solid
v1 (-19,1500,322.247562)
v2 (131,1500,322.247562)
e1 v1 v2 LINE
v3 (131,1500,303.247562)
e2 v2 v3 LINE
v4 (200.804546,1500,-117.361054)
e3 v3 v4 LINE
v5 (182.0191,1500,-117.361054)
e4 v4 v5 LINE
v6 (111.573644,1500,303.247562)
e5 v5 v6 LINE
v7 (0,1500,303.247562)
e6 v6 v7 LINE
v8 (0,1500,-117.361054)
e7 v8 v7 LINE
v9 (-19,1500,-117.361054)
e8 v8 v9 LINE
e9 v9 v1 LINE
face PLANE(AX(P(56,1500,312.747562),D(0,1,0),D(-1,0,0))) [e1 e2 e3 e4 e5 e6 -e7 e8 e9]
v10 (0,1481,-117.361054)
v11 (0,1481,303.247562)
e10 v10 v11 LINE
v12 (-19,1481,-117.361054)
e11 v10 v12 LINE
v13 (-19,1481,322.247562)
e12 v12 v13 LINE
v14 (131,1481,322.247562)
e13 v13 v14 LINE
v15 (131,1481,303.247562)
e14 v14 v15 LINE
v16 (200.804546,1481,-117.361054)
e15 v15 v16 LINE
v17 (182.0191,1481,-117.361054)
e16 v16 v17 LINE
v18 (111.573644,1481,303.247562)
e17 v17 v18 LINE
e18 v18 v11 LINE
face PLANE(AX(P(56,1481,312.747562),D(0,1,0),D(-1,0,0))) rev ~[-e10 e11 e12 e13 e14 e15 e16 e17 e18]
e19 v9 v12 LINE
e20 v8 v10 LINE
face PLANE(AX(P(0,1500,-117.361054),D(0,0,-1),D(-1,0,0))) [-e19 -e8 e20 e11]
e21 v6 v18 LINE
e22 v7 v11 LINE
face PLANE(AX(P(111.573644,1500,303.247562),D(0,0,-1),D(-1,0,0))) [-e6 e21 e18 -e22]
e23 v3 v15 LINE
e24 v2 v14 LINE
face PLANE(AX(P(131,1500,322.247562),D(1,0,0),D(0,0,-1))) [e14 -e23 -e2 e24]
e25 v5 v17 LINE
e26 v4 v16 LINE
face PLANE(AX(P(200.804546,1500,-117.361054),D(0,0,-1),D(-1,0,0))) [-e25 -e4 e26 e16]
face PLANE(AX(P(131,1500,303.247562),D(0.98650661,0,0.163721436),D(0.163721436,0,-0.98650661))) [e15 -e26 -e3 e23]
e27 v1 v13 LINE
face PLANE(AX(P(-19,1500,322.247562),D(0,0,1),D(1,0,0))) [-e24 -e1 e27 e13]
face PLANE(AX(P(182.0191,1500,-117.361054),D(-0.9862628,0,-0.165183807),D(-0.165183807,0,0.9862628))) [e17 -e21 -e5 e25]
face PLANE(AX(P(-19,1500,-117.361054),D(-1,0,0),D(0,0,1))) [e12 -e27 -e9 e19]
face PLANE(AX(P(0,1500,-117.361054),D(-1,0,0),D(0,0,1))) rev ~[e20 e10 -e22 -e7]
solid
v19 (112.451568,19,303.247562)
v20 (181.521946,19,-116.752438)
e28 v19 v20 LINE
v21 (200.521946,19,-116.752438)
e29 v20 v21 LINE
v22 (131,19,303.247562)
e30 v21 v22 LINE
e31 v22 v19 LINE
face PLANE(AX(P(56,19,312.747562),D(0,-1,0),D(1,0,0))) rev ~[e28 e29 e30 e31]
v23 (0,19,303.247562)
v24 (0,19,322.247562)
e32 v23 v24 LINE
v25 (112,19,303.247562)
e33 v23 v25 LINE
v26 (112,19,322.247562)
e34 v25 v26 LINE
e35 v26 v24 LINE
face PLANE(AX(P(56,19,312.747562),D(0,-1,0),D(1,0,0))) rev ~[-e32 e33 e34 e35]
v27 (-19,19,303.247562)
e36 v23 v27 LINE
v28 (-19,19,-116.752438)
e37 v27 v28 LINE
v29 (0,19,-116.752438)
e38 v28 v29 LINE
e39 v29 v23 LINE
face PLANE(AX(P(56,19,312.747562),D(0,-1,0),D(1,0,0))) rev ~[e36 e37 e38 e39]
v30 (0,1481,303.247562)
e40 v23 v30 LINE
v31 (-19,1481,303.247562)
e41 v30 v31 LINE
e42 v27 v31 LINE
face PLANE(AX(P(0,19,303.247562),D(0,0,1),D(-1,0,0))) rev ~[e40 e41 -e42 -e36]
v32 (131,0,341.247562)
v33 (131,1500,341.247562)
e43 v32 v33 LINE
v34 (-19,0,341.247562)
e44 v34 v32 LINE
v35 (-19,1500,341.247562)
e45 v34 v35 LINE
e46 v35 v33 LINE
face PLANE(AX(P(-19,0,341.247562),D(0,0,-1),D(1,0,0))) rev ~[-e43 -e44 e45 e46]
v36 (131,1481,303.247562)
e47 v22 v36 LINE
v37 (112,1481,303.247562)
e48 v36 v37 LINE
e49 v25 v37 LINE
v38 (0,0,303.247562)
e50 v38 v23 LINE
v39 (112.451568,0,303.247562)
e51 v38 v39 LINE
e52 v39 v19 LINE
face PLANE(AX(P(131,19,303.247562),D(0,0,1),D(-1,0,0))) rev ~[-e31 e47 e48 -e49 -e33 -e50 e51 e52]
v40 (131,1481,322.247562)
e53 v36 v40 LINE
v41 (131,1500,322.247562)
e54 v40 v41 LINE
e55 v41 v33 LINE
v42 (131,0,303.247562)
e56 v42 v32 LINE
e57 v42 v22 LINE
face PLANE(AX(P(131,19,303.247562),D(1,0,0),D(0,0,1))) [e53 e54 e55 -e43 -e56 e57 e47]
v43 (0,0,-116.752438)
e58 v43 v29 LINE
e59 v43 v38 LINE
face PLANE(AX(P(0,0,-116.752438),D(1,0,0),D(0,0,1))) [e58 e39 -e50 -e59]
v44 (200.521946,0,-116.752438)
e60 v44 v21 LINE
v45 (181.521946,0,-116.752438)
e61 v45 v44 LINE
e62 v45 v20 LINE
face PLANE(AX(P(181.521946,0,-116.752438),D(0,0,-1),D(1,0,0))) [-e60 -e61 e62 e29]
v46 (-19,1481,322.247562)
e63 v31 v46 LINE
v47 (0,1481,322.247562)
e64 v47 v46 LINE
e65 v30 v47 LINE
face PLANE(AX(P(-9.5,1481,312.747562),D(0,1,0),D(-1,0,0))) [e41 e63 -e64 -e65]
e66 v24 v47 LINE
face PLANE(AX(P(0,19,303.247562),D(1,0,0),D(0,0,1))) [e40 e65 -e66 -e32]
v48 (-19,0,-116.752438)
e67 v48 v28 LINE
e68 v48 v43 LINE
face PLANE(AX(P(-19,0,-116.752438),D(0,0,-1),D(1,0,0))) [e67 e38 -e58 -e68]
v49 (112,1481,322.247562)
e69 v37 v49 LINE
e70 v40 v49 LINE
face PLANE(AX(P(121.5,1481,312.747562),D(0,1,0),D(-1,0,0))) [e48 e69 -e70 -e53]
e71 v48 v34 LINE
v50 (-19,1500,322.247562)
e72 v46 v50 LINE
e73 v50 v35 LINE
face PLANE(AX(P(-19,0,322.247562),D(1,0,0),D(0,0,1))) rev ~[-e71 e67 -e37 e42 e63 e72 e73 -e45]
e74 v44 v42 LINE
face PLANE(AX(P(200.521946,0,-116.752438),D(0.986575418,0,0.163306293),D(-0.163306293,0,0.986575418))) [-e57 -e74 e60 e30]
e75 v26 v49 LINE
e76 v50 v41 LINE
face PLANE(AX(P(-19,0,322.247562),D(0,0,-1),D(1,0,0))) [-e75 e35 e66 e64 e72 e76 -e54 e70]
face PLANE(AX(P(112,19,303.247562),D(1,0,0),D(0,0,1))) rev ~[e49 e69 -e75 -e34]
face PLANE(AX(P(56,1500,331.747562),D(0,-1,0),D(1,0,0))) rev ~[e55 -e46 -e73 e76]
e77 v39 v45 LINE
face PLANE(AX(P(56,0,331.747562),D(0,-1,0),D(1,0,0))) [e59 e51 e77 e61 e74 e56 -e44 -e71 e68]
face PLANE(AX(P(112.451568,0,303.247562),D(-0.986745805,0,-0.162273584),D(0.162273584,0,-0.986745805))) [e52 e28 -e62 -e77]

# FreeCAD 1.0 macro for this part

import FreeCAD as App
import Part
import Sketcher

V = App.Vector


def add_polygon(sketch, points):
    """Adds a closed chain of lines whose ends are joined by coincident constraints."""
    first, n = sketch.GeometryCount, len(points)
    for a, b in zip(points, points[1:] + points[:1]):
        sketch.addGeometry(Part.LineSegment(App.Vector(*a, 0), App.Vector(*b, 0)), False)
    for i in range(n):
        sketch.addConstraint(Sketcher.Constraint("Coincident", first + i, 2, first + (i + 1) % n, 1))

doc = App.newDocument("Part")
body = doc.addObject("PartDesign::Body", "Body")

sketch1 = body.newObject("Sketcher::SketchObject", "Sketch")
sketch1.AttachmentSupport = (doc.getObject("XZ_Plane"), [""])
sketch1.MapMode = "FlatFace"
add_polygon(sketch1, [(131, 322), (-19, 322), (-19, -117), (0, -117), (0, 303), (112, 303), (182, -117), (201, -117), (131, 303)])
sketch1.addConstraint(Sketcher.Constraint("Horizontal", 0))
sketch1.addConstraint(Sketcher.Constraint("Vertical", 1))
sketch1.addConstraint(Sketcher.Constraint("Horizontal", 2))
sketch1.addConstraint(Sketcher.Constraint("Vertical", 3))
sketch1.addConstraint(Sketcher.Constraint("Horizontal", 4))
sketch1.addConstraint(Sketcher.Constraint("Horizontal", 6))
sketch1.addConstraint(Sketcher.Constraint("Vertical", 8))
sketch1.addConstraint(Sketcher.Constraint("PointOnObject", 2, 2, -2))
sketch1.addConstraint(Sketcher.Constraint("Horizontal", 2, 2, 5, 2))
sketch1.addConstraint(Sketcher.Constraint("Horizontal", 4, 2, 7, 2))
sketch1.addConstraint(Sketcher.Constraint("Equal", 2, 6))
sketch1.addConstraint(Sketcher.Constraint("Equal", 6, 8))
sketch1.addConstraint(Sketcher.Constraint("DistanceX", 0, 2, 0, 1, 150.0))
sketch1.addConstraint(Sketcher.Constraint("DistanceX", 2, 1, 2, 2, 19.0))
sketch1.addConstraint(Sketcher.Constraint("DistanceY", 1, 2, 1, 1, 439.0))
sketch1.addConstraint(Sketcher.Constraint("DistanceX", 4, 1, 4, 2, 112.451568))
sketch1.addConstraint(Sketcher.Constraint("DistanceY", -1, 1, 0, 2, 322.247562))
sketch1.addConstraint(Sketcher.Constraint("Distance", 5, 425.641536))
pad1 = body.newObject("PartDesign::Pad", "Pad")
pad1.Profile = sketch1
pad1.Length = 19
pad1.Reversed = True

sketch2 = body.newObject("Sketcher::SketchObject", "Sketch001")
sketch2.AttachmentSupport = (doc.getObject("XZ_Plane"), [""])
sketch2.MapMode = "FlatFace"
add_polygon(sketch2, [(-19, 341), (-19, 322), (131, 322), (131, 341)])
sketch2.addConstraint(Sketcher.Constraint("Vertical", 0))
sketch2.addConstraint(Sketcher.Constraint("Horizontal", 1))
sketch2.addConstraint(Sketcher.Constraint("Vertical", 2))
sketch2.addConstraint(Sketcher.Constraint("Horizontal", 3))
sketch2.addConstraint(Sketcher.Constraint("DistanceX", 1, 1, 1, 2, 150.0))
sketch2.addConstraint(Sketcher.Constraint("DistanceY", 0, 2, 0, 1, 19.0))
sketch2.addConstraint(Sketcher.Constraint("DistanceX", 0, 2, -1, 1, 19.0))
sketch2.addConstraint(Sketcher.Constraint("DistanceY", -1, 1, 0, 2, 322.247562))
pad2 = body.newObject("PartDesign::Pad", "Pad001")
pad2.Profile = sketch2
pad2.Length = 1500
pad2.Reversed = True

sketch3 = body.newObject("Sketcher::SketchObject", "Sketch002")
sketch3.AttachmentSupport = (doc.getObject("XZ_Plane"), [""])
sketch3.MapMode = "FlatFace"
sketch3.AttachmentOffset = App.Placement(V(0, 0, -19), App.Rotation())
add_polygon(sketch3, [(131, 322), (131, 303), (112, 303), (112, 322)])
add_polygon(sketch3, [(0, 322), (0, 303), (-19, 303), (-19, 322)])
sketch3.addConstraint(Sketcher.Constraint("Vertical", 0))
sketch3.addConstraint(Sketcher.Constraint("Horizontal", 1))
sketch3.addConstraint(Sketcher.Constraint("Vertical", 2))
sketch3.addConstraint(Sketcher.Constraint("Horizontal", 3))
sketch3.addConstraint(Sketcher.Constraint("Vertical", 4))
sketch3.addConstraint(Sketcher.Constraint("Horizontal", 5))
sketch3.addConstraint(Sketcher.Constraint("Vertical", 6))
sketch3.addConstraint(Sketcher.Constraint("Horizontal", 7))
sketch3.addConstraint(Sketcher.Constraint("PointOnObject", 4, 2, -2))
sketch3.addConstraint(Sketcher.Constraint("Horizontal", 1, 2, 4, 2))
sketch3.addConstraint(Sketcher.Constraint("Horizontal", 3, 2, 6, 2))
sketch3.addConstraint(Sketcher.Constraint("Equal", 3, 5))
sketch3.addConstraint(Sketcher.Constraint("Equal", 7, 0))
sketch3.addConstraint(Sketcher.Constraint("DistanceX", 1, 2, 1, 1, 19.0))
sketch3.addConstraint(Sketcher.Constraint("DistanceX", -1, 1, 0, 2, 131.0))
sketch3.addConstraint(Sketcher.Constraint("DistanceY", -1, 1, 0, 2, 303.247562))
pad3 = body.newObject("PartDesign::Pad", "Pad002")
pad3.Profile = sketch3
pad3.Length = 1462
pad3.Reversed = True
body2 = doc.addObject("PartDesign::Body", "Body001")

sketch4 = body2.newObject("Sketcher::SketchObject", "Sketch003")
sketch4.AttachmentSupport = (doc.getObject("XZ_Plane001"), [""])
sketch4.MapMode = "FlatFace"
sketch4.AttachmentOffset = App.Placement(V(0, 0, -1500), App.Rotation())
add_polygon(sketch4, [(-19, 322), (131, 322), (131, 303), (201, -117), (182, -117), (112, 303), (0, 303), (0, -117), (-19, -117)])
sketch4.addConstraint(Sketcher.Constraint("Horizontal", 0))
sketch4.addConstraint(Sketcher.Constraint("Vertical", 1))
sketch4.addConstraint(Sketcher.Constraint("Horizontal", 3))
sketch4.addConstraint(Sketcher.Constraint("Horizontal", 5))
sketch4.addConstraint(Sketcher.Constraint("Vertical", 6))
sketch4.addConstraint(Sketcher.Constraint("Horizontal", 7))
sketch4.addConstraint(Sketcher.Constraint("Vertical", 8))
sketch4.addConstraint(Sketcher.Constraint("PointOnObject", 5, 2, -2))
sketch4.addConstraint(Sketcher.Constraint("Horizontal", 1, 2, 4, 2))
sketch4.addConstraint(Sketcher.Constraint("Horizontal", 3, 2, 6, 2))
sketch4.addConstraint(Sketcher.Constraint("Equal", 7, 1))
sketch4.addConstraint(Sketcher.Constraint("DistanceX", 0, 1, 0, 2, 150.0))
sketch4.addConstraint(Sketcher.Constraint("DistanceX", 7, 2, 7, 1, 19.0))
sketch4.addConstraint(Sketcher.Constraint("DistanceX", -1, 1, 3, 2, 182.0191))
sketch4.addConstraint(Sketcher.Constraint("Distance", 2, 426.36168))
sketch4.addConstraint(Sketcher.Constraint("Distance", 4, 426.467079))
sketch4.addConstraint(Sketcher.Constraint("DistanceX", 3, 2, 3, 1, 18.785447))
sketch4.addConstraint(Sketcher.Constraint("DistanceY", -1, 1, 0, 2, 322.247562))
pad4 = body2.newObject("PartDesign::Pad", "Pad003")
pad4.Profile = sketch4
pad4.Length = 19

doc.recompute()
